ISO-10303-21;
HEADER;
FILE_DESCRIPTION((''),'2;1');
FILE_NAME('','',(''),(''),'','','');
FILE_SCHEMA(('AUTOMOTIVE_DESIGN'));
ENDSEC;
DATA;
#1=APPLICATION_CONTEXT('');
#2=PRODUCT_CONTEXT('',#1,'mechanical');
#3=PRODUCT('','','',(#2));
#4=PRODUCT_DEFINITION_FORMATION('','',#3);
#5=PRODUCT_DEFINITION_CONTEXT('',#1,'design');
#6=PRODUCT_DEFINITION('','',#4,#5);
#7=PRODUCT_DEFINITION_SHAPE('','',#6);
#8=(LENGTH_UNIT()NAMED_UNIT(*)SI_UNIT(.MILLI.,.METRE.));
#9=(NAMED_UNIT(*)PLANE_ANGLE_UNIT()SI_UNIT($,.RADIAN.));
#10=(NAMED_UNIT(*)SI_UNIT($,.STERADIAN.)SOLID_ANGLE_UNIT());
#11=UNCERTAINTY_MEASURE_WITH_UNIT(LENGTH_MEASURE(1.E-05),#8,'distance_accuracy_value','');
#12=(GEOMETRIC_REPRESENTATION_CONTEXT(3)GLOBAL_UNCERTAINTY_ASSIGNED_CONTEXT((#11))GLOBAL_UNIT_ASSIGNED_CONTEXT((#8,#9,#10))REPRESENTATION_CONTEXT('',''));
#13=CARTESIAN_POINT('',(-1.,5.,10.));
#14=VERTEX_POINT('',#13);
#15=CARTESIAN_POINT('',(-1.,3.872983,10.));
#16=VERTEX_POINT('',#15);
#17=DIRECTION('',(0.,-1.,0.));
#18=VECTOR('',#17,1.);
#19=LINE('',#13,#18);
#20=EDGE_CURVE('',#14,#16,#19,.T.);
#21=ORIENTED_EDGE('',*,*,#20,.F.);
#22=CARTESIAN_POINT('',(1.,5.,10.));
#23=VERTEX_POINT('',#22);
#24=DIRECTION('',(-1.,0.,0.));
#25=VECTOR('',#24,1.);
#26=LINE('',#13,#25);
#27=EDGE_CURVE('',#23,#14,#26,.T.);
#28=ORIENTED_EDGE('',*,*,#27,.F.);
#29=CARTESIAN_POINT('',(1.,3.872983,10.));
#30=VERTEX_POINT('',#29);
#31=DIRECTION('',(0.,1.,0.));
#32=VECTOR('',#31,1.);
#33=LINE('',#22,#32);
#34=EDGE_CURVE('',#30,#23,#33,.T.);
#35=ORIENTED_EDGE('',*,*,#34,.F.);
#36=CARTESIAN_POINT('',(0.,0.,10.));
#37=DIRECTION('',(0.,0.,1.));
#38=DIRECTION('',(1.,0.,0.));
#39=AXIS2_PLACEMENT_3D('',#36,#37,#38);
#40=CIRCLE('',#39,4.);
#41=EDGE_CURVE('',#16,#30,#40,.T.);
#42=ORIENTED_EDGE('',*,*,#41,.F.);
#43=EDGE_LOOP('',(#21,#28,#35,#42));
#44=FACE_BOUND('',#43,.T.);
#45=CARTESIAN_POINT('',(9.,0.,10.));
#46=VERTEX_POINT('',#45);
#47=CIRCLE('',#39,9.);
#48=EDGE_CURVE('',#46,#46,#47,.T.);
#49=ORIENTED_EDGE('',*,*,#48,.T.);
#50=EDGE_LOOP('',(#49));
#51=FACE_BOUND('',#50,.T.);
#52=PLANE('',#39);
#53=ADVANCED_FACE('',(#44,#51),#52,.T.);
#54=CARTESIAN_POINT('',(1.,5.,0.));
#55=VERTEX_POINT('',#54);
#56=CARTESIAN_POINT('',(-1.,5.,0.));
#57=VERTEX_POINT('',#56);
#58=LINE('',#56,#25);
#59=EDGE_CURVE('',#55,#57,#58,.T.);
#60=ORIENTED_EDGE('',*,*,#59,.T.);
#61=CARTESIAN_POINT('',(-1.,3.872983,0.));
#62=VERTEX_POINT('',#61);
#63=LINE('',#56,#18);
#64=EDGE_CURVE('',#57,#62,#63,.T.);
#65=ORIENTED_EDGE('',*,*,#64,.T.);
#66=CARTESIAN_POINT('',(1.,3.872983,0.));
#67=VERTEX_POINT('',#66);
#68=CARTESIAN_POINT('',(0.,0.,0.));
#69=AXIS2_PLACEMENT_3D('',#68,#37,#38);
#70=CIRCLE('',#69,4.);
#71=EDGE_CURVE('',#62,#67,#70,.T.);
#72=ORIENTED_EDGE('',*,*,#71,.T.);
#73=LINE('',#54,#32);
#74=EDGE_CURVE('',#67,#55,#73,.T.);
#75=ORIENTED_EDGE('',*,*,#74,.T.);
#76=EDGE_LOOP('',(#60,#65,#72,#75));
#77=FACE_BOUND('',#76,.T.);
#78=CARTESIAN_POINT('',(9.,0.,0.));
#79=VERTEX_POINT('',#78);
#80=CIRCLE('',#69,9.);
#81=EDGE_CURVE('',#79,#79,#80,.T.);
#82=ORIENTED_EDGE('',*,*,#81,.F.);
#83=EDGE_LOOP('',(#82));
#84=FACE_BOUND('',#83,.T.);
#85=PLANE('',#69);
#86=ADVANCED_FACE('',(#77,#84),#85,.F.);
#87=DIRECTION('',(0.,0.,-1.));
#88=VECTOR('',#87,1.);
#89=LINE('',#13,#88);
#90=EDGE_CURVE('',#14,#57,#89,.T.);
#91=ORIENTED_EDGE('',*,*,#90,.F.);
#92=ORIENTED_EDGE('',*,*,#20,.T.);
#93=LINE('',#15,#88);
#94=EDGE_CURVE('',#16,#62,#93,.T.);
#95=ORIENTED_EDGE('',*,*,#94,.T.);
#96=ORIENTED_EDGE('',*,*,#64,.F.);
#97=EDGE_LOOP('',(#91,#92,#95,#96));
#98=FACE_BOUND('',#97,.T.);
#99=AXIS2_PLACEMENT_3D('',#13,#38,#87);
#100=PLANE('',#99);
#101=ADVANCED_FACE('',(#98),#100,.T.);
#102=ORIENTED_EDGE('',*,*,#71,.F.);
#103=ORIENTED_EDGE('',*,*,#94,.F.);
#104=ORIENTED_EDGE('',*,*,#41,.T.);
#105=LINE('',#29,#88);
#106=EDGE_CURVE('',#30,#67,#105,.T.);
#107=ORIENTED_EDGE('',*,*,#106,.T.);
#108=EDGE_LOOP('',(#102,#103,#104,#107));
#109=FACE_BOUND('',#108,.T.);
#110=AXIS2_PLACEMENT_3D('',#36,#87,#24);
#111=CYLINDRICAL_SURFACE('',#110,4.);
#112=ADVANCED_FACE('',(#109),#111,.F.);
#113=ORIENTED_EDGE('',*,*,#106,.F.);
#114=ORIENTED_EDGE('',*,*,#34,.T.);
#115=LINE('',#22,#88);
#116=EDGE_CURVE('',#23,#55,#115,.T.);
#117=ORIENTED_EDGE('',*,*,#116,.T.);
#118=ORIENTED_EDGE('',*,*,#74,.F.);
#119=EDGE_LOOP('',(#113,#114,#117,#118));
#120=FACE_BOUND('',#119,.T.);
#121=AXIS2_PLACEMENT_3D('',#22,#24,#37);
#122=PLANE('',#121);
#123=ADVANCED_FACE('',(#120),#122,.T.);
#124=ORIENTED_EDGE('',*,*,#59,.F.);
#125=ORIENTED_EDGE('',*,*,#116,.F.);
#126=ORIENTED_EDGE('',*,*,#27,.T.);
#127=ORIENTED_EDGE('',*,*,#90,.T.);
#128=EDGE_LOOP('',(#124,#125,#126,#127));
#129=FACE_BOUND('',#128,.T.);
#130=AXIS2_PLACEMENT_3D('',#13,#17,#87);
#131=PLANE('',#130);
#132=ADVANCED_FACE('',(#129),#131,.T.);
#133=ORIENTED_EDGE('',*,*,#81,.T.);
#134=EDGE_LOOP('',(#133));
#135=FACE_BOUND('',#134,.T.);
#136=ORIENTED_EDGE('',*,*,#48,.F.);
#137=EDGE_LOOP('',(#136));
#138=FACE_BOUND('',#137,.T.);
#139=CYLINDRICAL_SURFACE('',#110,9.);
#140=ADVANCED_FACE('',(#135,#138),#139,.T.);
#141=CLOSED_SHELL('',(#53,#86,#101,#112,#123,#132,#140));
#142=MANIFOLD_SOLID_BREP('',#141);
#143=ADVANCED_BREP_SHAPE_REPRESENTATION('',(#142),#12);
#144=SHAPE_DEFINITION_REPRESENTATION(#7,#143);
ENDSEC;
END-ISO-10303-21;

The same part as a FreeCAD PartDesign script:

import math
import FreeCAD as App
import Part
import Sketcher

doc = App.newDocument("Part")
params = doc.addObject("Spreadsheet::Sheet", "Params")
for row, (alias, value) in enumerate([
    ("sketch1_diameter", "18 mm"),
    ("sketch1_radius", "4 mm"),
    ("sketch1_width", "2 mm"),
    ("pad1_length", "10 mm"),
], start=1):
    params.set(f"A{row}", alias)
    params.set(f"B{row}", "=" + value)
    params.setAlias(f"B{row}", alias)

body = doc.addObject("PartDesign::Body", "Body")

# Sketch on XY plane
sketch1 = body.newObject("Sketcher::SketchObject", "Sketch")
sketch1.AttachmentSupport = (doc.getObject("XY_Plane"), [""])
sketch1.MapMode = "FlatFace"
sketch1.addGeometry([
    Part.Circle(App.Vector(0, 0, 0), App.Vector(0, 0, 1), 9),  # 0
    Part.LineSegment(App.Vector(-1, 3.9, 0), App.Vector(-1, 5, 0)),  # 1
    Part.LineSegment(App.Vector(-1, 5, 0), App.Vector(1, 5, 0)),  # 2
    Part.LineSegment(App.Vector(1, 5, 0), App.Vector(1, 3.9, 0)),  # 3
    Part.ArcOfCircle(Part.Circle(App.Vector(0, 0, 0), App.Vector(0, 0, 1), 4), math.radians(104), math.radians(436)),  # 4
], False)
sketch1.addConstraint([
    Sketcher.Constraint("Coincident", 1, 2, 2, 1),
    Sketcher.Constraint("Coincident", 2, 2, 3, 1),
    Sketcher.Constraint("Coincident", 3, 2, 4, 2),
    Sketcher.Constraint("Coincident", 4, 1, 1, 1),
    Sketcher.Constraint("Vertical", 1),
    Sketcher.Constraint("Horizontal", 2),
    Sketcher.Constraint("Vertical", 3),
    Sketcher.Constraint("Coincident", 0, 3, -1, 1),
    Sketcher.Constraint("Coincident", 4, 3, -1, 1),
    Sketcher.Constraint("Horizontal", 3, 2, 4, 1),
    Sketcher.Constraint("Diameter", 0, 18.0),
    Sketcher.Constraint("Radius", 4, 4.0),
    Sketcher.Constraint("DistanceX", 2, 1, 2, 2, 2.0),
    Sketcher.Constraint("DistanceY", -1, 1, 1, 2, 5.0),
])
sketch1.setExpression("Constraints[10]", "Params.sketch1_diameter")
sketch1.setExpression("Constraints[11]", "Params.sketch1_radius")
sketch1.setExpression("Constraints[12]", "Params.sketch1_width")
pad1 = body.newObject("PartDesign::Pad", "Pad")
pad1.Profile = sketch1
pad1.setExpression("Length", "Params.pad1_length")

doc.recompute()
